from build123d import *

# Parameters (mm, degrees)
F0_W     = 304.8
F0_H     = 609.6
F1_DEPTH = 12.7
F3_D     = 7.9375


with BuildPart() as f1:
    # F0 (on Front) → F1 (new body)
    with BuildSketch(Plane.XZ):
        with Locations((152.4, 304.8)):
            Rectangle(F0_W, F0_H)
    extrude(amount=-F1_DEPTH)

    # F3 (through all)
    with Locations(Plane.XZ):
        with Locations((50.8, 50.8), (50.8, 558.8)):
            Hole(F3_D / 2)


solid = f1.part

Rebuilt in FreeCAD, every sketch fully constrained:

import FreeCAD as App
import Part
import Sketcher
from FreeCAD import Vector
Q = App.Units.Quantity


def add_polygon(sketch, points):
    """Adds a closed chain of lines whose ends are joined by coincident constraints."""
    first, n = sketch.GeometryCount, len(points)
    for a, b in zip(points, points[1:] + points[:1]):
        sketch.addGeometry(Part.LineSegment(App.Vector(*a, 0), App.Vector(*b, 0)), False)
    for i in range(n):
        sketch.addConstraint(Sketcher.Constraint("Coincident", first + i, 2, first + (i + 1) % n, 1))

doc = App.newDocument("Part")
body = doc.addObject("PartDesign::Body", "Body")

# Sketch on XZ plane
sketch1 = body.newObject("Sketcher::SketchObject", "Sketch")
sketch1.AttachmentSupport = (doc.getObject("XZ_Plane"), [""])
sketch1.MapMode = "FlatFace"
add_polygon(sketch1, [(0, 610), (0, 0), (305, 0), (305, 610)])  # lines 0-3
sketch1.addConstraint(Sketcher.Constraint("Vertical", 0))
sketch1.addConstraint(Sketcher.Constraint("Horizontal", 1))
sketch1.addConstraint(Sketcher.Constraint("Vertical", 2))
sketch1.addConstraint(Sketcher.Constraint("Horizontal", 3))
sketch1.addConstraint(Sketcher.Constraint("Coincident", 0, 2, -1, 1))
sketch1.addConstraint(Sketcher.Constraint("DistanceX", 1, 1, 1, 2, Q("12 in")))
sketch1.addConstraint(Sketcher.Constraint("DistanceY", 0, 2, 0, 1, Q("24 in")))
pad1 = body.newObject("PartDesign::Pad", "Pad")
pad1.Profile = sketch1
pad1.Length = Q("0.5 in")
pad1.Reversed = True

# Sketch on XZ plane
sketch2 = body.newObject("Sketcher::SketchObject", "Sketch001")
sketch2.AttachmentSupport = (doc.getObject("XZ_Plane"), [""])
sketch2.MapMode = "FlatFace"
sketch2.addGeometry(Part.Circle(Vector(50.8, 50.8, 0), Vector(0, 0, 1), 4), False)
sketch2.addGeometry(Part.Circle(Vector(50.8, 558.8, 0), Vector(0, 0, 1), 4), False)
sketch2.addConstraint(Sketcher.Constraint("Equal", 0, 1))
sketch2.addConstraint(Sketcher.Constraint("Vertical", 0, 3, 1, 3))
sketch2.addConstraint(Sketcher.Constraint("Diameter", 0, Q("0.3125 in")))
sketch2.addConstraint(Sketcher.Constraint("DistanceX", -1, 1, 0, 3, Q("2 in")))
sketch2.addConstraint(Sketcher.Constraint("DistanceY", -1, 1, 0, 3, Q("2 in")))
sketch2.addConstraint(Sketcher.Constraint("DistanceY", -1, 1, 1, 3, Q("22 in")))
doc.recompute()
hole = body.newObject("PartDesign::Hole", "Hole")
hole.Profile = sketch2
hole.ThreadType = "None"
hole.Diameter = Q("0.3125 in")
hole.DepthType = "ThroughAll"

doc.recompute()
